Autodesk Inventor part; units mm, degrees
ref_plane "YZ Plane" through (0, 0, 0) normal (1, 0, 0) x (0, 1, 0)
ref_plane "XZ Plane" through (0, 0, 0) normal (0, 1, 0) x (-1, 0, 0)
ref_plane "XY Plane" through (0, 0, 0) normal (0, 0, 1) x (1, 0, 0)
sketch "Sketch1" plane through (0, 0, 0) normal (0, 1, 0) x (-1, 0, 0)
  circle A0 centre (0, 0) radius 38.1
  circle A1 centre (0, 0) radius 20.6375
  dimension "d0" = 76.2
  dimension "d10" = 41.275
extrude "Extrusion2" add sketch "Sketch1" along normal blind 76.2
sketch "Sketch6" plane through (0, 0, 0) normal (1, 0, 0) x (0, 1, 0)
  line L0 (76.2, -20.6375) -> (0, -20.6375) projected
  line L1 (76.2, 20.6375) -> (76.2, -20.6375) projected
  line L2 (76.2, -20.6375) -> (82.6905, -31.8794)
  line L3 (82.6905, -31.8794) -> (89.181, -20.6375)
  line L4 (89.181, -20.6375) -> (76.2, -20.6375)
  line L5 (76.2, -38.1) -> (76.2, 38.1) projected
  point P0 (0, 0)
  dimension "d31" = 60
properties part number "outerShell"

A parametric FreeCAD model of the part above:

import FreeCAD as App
import Part
import Sketcher
from FreeCAD import Vector
Q = App.Units.Quantity

doc = App.newDocument("Part")
body = doc.addObject("PartDesign::Body", "Body")

sketch1 = body.newObject("Sketcher::SketchObject", "Sketch")
sketch1.AttachmentSupport = (doc.getObject("XZ_Plane"), [""])
sketch1.MapMode = "FlatFace"
sketch1.addGeometry(Part.Circle(Vector(0, 0, 0), Vector(0, 0, 1), 38), False)
sketch1.addGeometry(Part.Circle(Vector(0, 0, 0), Vector(0, 0, 1), 21), False)
sketch1.addConstraint(Sketcher.Constraint("Coincident", 0, 3, -1, 1))
sketch1.addConstraint(Sketcher.Constraint("Coincident", 1, 3, -1, 1))
sketch1.addConstraint(Sketcher.Constraint("Diameter", 0, Q("3 in")))
sketch1.addConstraint(Sketcher.Constraint("Diameter", 1, Q("1.625 in")))
pad1 = body.newObject("PartDesign::Pad", "Pad")
pad1.Profile = sketch1
pad1.Length = Q("3 in")
pad1.Reversed = True

doc.recompute()
